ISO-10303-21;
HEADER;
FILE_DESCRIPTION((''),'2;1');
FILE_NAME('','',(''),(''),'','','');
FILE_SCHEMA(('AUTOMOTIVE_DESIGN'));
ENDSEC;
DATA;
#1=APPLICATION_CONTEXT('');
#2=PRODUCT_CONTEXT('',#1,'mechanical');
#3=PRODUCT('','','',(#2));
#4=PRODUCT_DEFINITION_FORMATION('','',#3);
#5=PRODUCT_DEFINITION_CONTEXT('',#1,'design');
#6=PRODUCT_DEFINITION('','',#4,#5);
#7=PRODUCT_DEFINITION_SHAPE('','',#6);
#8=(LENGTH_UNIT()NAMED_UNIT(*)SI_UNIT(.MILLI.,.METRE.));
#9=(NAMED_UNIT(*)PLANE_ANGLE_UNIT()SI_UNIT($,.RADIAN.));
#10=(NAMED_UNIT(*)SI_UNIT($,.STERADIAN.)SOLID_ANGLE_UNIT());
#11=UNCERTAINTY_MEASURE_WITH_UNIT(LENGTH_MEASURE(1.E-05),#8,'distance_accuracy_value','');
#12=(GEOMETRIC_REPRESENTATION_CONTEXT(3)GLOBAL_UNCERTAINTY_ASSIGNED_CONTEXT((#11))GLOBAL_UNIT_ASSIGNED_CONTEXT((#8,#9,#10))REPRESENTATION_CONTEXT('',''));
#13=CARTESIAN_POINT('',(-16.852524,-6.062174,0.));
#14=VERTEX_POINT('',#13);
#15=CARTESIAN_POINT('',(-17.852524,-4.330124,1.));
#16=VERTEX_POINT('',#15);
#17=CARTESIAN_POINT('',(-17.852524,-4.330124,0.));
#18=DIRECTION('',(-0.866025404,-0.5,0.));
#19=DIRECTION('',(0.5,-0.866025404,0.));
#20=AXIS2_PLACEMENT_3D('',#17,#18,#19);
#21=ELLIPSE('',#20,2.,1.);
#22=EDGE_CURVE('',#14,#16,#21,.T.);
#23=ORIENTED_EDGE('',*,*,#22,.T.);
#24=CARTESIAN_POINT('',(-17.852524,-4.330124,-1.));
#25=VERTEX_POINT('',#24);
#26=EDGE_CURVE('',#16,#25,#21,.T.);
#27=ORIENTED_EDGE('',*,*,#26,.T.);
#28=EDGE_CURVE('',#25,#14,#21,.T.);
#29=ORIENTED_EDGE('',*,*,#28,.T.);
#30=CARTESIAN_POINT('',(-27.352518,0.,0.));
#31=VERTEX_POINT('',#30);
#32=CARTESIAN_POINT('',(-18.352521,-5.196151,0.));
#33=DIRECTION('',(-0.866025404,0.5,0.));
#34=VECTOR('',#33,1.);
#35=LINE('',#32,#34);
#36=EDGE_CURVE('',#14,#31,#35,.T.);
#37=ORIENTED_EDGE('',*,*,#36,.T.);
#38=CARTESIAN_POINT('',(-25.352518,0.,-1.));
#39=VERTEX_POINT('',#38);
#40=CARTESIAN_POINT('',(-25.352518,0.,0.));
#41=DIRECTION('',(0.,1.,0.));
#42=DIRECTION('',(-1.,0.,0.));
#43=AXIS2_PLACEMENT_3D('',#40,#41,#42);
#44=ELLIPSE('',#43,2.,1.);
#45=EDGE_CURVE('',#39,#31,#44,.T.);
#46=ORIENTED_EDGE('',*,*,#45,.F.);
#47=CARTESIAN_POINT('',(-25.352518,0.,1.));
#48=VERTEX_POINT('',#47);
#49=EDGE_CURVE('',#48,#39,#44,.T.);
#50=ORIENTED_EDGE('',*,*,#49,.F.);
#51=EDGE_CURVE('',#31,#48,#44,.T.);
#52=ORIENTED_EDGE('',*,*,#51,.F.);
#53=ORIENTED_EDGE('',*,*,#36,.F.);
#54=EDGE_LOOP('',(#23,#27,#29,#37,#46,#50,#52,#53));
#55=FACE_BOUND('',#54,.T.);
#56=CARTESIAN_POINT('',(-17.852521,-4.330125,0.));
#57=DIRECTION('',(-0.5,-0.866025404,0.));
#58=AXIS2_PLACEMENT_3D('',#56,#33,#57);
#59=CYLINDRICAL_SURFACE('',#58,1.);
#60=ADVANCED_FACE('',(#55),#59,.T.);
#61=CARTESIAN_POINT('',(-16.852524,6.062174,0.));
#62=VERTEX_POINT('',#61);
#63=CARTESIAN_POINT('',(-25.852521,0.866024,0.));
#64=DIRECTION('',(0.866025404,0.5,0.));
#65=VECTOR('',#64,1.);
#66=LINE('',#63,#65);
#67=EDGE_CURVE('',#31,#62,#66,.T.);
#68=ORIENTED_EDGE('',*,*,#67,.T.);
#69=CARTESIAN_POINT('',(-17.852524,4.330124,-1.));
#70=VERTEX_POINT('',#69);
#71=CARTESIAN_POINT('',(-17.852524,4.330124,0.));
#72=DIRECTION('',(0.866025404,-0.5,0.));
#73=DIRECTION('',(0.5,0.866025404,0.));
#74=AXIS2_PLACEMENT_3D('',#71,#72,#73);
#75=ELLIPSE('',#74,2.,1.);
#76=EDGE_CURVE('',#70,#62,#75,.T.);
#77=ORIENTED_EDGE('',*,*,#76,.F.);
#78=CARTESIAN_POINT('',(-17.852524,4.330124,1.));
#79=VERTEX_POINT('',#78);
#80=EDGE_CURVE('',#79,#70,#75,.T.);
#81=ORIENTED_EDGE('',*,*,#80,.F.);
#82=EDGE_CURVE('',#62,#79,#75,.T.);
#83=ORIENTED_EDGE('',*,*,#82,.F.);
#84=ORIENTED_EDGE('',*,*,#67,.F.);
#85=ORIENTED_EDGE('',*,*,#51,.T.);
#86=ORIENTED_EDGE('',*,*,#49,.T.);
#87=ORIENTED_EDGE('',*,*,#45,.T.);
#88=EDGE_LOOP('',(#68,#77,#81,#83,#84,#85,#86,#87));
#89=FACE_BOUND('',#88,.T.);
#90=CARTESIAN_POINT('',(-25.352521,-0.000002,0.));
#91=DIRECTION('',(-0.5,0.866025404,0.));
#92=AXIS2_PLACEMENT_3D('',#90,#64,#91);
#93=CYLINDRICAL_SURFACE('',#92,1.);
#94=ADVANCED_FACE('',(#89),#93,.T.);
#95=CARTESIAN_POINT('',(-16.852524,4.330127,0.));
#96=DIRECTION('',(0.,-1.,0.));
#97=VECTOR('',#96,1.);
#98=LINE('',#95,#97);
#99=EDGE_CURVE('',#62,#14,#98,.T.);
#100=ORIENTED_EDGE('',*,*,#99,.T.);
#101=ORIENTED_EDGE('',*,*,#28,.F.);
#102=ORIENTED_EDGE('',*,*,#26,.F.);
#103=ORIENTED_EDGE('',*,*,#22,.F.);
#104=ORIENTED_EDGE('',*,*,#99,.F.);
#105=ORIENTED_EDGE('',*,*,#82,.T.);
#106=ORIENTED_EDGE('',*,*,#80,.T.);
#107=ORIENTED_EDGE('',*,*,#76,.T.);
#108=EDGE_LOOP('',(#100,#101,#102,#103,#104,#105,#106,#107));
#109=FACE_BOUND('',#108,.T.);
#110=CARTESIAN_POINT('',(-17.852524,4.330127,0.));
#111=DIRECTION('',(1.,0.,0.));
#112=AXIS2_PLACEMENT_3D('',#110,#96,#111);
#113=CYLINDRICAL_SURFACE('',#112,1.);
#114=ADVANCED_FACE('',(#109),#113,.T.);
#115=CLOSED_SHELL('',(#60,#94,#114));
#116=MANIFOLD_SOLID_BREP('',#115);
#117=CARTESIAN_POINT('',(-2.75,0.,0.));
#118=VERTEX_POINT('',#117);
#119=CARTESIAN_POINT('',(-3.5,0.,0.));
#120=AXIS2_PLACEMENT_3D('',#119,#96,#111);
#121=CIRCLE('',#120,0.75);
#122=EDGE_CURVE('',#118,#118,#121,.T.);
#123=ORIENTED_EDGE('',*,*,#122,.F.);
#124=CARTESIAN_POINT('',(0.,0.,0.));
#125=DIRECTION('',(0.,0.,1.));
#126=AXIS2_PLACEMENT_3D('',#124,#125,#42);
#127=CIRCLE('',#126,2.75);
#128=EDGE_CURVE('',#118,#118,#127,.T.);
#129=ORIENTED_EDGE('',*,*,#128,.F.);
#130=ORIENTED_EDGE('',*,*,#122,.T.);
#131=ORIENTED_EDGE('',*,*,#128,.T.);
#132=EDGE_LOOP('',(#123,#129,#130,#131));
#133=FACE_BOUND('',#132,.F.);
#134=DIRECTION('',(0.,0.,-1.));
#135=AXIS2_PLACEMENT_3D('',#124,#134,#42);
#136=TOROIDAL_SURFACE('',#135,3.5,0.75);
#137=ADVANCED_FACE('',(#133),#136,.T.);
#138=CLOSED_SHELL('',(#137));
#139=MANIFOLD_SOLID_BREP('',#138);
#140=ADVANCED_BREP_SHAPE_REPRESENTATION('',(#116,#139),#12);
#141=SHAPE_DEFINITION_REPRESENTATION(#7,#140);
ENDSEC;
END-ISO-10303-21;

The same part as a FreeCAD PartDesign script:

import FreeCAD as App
import Part
import Sketcher

V = App.Vector
Q = App.Units.Quantity

doc = App.newDocument("Part")
body = doc.addObject("PartDesign::Body", "Body")

sketch1 = body.newObject("Sketcher::SketchObject", "Sketch")
sketch1.AttachmentSupport = (doc.getObject("XZ_Plane"), [""])
sketch1.MapMode = "FlatFace"
sketch1.addGeometry(Part.Circle(V(-3.5, 0, 0), V(0, 0, 1), 0.75), False)
sketch1.addConstraint([
    Sketcher.Constraint("PointOnObject", 0, 3, -1),
    Sketcher.Constraint("Diameter", 0, Q("1.5 mm")),
    Sketcher.Constraint("DistanceX", 0, 3, -1, 1, Q("3.5 mm")),
])
revolution = body.newObject("PartDesign::Revolution", "Revolution")
revolution.Profile = sketch1
revolution.ReferenceAxis = (sketch1, ["V_Axis"])
revolution.Angle = 360
body2 = doc.addObject("PartDesign::Body", "Body001")

sketch2 = body2.newObject("Sketcher::SketchObject", "Sketch001")
sketch2.AttachmentSupport = (doc.getObject("XZ_Plane001"), [""])
sketch2.MapMode = "FlatFace"
sketch2.addGeometry(Part.Circle(V(-17.852524, 0, 0), V(0, 0, 1), 1), False)
sketch2.addConstraint([
    Sketcher.Constraint("PointOnObject", 0, 3, -1),
    Sketcher.Constraint("Diameter", 0, Q("2 mm")),
    Sketcher.Constraint("DistanceX", 0, 3, -1, 1, Q("17.852524 mm")),
])

sketch3 = body2.newObject("Sketcher::SketchObject", "Sketch002")
sketch3.AttachmentSupport = (doc.getObject("XY_Plane001"), [""])
sketch3.MapMode = "FlatFace"
sketch3.addGeometry([
    Part.LineSegment(V(-25.352522, 0, 0), V(-17.852522, 4.330127, 0)),
    Part.LineSegment(V(-17.852522, 4.330127, 0), V(-17.852522, -4.330127, 0)),
    Part.LineSegment(V(-17.852522, -4.330127, 0), V(-25.352522, 0, 0)),
], False)
sketch3.addConstraint([
    Sketcher.Constraint("Coincident", 0, 2, 1, 1),
    Sketcher.Constraint("Coincident", 1, 2, 2, 1),
    Sketcher.Constraint("Coincident", 2, 2, 0, 1),
    Sketcher.Constraint("Vertical", 1),
    Sketcher.Constraint("PointOnObject", 2, 2, -1),
    Sketcher.Constraint("Equal", 0, 2),
    Sketcher.Constraint("Angle", 0, Q("30 deg")),
    Sketcher.Constraint("DistanceX", 2, 2, 0, 2, Q("7.5 mm")),
    Sketcher.Constraint("DistanceX", 0, 2, -1, 1, Q("17.852522 mm")),
])
doc.recompute()

additivepipe = body2.newObject("PartDesign::AdditivePipe", "AdditivePipe")
additivepipe.Profile = sketch2
additivepipe.Spine = (sketch3, ["Edge1", "Edge2", "Edge3"])
additivepipe.Transition = "Right corner"

doc.recompute()
